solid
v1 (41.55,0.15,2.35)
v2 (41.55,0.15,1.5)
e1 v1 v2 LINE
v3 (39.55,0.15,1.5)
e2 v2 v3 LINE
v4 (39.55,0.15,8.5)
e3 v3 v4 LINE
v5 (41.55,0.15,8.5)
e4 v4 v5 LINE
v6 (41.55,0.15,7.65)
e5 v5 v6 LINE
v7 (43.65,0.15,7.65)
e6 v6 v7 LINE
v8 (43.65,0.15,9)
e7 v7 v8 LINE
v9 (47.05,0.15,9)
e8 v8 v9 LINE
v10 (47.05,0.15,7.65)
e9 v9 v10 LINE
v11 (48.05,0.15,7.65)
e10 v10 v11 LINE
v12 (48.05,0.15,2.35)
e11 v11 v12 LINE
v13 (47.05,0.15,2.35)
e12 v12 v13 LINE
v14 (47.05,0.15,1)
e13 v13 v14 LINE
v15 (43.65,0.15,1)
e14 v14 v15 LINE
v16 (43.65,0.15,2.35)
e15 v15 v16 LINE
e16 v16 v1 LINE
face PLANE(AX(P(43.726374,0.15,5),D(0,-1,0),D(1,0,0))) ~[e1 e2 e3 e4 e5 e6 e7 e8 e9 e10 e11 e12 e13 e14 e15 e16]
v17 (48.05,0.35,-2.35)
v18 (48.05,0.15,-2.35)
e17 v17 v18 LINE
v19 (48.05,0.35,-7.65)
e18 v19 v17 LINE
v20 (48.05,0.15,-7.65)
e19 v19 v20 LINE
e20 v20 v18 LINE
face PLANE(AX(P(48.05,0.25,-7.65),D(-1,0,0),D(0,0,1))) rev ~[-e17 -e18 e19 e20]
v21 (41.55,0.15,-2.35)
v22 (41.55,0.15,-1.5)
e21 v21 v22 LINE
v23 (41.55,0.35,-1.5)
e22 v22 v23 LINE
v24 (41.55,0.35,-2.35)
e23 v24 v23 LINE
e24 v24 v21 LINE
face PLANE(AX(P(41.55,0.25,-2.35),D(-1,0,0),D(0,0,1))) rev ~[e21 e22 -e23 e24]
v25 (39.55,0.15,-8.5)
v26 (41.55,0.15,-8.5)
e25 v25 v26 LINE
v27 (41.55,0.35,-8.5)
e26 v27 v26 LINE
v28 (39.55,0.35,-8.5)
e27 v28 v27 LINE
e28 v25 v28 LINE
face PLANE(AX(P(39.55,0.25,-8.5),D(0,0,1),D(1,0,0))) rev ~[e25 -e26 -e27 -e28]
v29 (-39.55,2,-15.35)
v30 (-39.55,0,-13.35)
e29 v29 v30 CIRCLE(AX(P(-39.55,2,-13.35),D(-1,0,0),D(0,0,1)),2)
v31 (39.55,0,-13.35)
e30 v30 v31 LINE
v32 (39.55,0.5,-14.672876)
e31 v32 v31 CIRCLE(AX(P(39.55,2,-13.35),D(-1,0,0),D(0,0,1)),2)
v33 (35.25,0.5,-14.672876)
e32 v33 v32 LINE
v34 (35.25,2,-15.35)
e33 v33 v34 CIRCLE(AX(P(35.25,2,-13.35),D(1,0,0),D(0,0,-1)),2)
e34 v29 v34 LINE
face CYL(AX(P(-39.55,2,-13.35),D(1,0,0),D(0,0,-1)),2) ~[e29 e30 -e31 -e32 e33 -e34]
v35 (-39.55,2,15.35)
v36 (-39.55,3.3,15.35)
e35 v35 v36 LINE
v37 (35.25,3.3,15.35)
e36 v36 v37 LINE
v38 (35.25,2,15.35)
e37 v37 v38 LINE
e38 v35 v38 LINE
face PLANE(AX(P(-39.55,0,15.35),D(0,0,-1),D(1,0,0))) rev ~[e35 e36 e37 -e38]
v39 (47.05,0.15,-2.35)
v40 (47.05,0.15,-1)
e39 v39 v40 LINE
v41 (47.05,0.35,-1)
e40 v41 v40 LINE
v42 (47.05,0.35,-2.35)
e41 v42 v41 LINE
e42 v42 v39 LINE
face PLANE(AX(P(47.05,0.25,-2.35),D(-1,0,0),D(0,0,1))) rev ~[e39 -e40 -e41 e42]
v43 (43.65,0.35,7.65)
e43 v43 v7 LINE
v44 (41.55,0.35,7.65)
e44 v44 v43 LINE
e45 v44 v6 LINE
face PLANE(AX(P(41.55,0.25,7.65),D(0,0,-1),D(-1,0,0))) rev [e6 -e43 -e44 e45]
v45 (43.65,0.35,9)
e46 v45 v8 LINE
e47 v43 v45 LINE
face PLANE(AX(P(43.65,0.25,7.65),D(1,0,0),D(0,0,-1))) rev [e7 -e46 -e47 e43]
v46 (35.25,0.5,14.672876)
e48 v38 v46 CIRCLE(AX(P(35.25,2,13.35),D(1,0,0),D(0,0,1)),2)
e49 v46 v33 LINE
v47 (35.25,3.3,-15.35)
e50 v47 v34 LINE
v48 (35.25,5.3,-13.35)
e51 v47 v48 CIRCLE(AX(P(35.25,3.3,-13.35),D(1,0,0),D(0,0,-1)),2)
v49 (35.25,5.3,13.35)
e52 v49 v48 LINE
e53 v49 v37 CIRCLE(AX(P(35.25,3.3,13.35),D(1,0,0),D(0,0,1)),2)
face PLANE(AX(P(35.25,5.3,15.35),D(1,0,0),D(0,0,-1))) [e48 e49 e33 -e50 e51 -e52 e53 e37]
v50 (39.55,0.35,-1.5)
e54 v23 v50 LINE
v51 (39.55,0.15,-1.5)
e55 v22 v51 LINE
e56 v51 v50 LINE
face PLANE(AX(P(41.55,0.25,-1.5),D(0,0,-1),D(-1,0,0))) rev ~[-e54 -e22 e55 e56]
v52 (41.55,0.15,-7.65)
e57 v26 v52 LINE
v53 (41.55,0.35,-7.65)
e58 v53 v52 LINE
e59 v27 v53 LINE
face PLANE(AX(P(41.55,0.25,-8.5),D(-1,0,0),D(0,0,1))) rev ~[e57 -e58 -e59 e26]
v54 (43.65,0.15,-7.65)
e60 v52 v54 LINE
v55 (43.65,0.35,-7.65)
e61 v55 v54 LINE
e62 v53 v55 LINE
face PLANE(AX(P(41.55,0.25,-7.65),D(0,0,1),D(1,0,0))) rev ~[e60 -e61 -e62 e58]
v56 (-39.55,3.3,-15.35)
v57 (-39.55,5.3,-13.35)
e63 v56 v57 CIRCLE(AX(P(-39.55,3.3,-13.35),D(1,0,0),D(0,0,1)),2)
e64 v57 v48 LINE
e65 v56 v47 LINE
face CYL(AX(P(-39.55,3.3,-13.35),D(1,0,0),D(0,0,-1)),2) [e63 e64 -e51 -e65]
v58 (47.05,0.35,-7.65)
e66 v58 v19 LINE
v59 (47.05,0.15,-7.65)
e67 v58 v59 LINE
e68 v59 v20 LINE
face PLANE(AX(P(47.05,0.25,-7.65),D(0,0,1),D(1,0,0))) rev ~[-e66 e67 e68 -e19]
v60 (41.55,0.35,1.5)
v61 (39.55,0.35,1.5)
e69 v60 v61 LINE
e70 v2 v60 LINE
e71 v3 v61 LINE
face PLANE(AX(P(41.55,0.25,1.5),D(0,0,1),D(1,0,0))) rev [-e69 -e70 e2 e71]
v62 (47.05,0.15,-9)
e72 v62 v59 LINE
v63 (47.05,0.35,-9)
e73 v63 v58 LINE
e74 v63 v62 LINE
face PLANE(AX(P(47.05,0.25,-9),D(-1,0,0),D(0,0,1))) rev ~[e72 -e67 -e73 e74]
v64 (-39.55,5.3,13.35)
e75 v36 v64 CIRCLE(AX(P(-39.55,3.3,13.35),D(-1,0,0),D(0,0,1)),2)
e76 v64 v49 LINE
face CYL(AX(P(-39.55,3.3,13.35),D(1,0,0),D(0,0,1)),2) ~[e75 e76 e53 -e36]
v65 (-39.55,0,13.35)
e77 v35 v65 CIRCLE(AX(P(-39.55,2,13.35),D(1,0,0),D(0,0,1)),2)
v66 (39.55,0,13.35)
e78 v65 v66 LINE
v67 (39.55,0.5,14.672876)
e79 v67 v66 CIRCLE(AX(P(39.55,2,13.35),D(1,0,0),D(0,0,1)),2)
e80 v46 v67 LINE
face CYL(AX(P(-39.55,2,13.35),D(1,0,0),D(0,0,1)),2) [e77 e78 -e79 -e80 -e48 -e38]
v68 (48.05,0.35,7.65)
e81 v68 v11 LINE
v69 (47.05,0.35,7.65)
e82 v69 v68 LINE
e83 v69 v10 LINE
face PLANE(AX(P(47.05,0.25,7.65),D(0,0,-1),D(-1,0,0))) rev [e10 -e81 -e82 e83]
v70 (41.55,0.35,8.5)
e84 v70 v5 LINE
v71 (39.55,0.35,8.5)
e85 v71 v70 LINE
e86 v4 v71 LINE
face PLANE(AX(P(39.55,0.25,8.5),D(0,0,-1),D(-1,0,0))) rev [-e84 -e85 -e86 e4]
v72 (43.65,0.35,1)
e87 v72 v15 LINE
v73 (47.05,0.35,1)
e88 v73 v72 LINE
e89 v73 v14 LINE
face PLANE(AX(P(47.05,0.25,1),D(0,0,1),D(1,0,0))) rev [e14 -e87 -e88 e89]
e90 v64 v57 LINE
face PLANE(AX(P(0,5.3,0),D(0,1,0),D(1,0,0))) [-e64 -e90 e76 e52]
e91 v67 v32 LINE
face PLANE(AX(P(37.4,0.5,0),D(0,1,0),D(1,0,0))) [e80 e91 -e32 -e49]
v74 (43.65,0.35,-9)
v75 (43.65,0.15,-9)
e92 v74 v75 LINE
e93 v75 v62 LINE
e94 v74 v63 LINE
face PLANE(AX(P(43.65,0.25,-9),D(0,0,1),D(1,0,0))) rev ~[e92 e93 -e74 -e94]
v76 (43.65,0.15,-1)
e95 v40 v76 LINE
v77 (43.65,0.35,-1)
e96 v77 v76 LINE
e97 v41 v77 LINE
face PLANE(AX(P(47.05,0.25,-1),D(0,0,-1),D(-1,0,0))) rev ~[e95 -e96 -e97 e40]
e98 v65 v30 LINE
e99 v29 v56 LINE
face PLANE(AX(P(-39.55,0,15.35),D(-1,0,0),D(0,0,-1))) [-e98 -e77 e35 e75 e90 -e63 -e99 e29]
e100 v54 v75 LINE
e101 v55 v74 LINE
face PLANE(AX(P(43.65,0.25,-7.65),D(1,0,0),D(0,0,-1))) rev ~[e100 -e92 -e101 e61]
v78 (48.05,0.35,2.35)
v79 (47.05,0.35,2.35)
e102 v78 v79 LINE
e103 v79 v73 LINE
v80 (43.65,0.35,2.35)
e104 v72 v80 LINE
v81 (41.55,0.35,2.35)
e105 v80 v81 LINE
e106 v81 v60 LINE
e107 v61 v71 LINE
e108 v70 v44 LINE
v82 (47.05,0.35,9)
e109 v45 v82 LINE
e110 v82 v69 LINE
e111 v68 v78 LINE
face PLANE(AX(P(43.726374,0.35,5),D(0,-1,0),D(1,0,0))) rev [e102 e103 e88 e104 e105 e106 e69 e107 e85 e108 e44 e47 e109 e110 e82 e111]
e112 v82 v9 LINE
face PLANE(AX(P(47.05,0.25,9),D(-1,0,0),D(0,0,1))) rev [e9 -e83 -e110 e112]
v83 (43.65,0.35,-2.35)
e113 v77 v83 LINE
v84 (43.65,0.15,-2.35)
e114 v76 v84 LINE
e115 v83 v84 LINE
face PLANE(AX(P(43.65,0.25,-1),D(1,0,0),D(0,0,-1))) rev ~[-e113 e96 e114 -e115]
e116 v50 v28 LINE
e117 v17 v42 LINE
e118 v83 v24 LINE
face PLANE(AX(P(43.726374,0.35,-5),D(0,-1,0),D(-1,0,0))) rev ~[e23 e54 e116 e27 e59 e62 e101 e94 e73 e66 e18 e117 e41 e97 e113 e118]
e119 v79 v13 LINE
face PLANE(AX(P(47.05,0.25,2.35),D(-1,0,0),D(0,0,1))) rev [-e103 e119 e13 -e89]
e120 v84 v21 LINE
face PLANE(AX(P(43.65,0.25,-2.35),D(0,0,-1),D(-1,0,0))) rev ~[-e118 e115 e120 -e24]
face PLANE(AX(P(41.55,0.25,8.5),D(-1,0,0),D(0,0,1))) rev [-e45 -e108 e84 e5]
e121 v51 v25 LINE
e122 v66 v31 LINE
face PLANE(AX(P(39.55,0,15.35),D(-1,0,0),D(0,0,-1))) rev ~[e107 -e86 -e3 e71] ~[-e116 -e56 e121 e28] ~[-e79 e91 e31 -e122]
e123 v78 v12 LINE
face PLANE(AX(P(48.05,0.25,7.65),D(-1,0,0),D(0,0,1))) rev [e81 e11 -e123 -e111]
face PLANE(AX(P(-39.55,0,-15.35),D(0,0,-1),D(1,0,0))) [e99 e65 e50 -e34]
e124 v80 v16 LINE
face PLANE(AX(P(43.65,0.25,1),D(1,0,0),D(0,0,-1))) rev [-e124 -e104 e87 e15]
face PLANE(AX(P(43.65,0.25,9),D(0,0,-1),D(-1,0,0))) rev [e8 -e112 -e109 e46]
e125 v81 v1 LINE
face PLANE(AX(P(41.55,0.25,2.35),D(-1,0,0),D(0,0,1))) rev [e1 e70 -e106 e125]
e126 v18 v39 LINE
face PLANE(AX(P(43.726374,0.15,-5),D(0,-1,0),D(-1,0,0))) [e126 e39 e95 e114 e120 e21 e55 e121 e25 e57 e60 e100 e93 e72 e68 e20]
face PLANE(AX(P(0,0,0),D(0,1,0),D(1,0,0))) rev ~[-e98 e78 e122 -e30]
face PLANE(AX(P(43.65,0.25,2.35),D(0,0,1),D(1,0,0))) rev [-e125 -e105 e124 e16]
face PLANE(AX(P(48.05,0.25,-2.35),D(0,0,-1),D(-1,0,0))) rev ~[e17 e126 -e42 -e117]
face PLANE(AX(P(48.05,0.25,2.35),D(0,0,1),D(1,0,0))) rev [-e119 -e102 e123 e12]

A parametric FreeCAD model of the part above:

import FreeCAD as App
import Part
import Sketcher

V = App.Vector


def edges_at(feature, points):
    """Names of the edges that pass closest to the given points."""
    edges = feature.Shape.Edges
    near = lambda p: min(range(len(edges)), key=lambda i: edges[i].distToShape(Part.Vertex(*p))[0])
    return sorted({f"Edge{near(p) + 1}" for p in points})

doc = App.newDocument("Part")
body = doc.addObject("PartDesign::Body", "Body")

# Sketch on XZ plane
sketch1 = doc.addObject("Sketcher::SketchObject", "Sketch")
body.addObject(sketch1)
sketch1.AttachmentSupport = (doc.XZ_Plane, [""])
sketch1.MapMode = "FlatFace"
sketch1.addGeometry([
    Part.LineSegment(V(-40, -15, 0), V(-40, 15, 0)),
    Part.LineSegment(V(-40, 15, 0), V(40, 15, 0)),
    Part.LineSegment(V(40, 15, 0), V(40, -15, 0)),
    Part.LineSegment(V(40, -15, 0), V(-40, -15, 0)),
], False)
sketch1.addConstraint([
    Sketcher.Constraint("Coincident", 0, 2, 1, 1),
    Sketcher.Constraint("Coincident", 1, 2, 2, 1),
    Sketcher.Constraint("Coincident", 2, 2, 3, 1),
    Sketcher.Constraint("Coincident", 3, 2, 0, 1),
    Sketcher.Constraint("Vertical", 0),
    Sketcher.Constraint("Horizontal", 1),
    Sketcher.Constraint("Vertical", 2),
    Sketcher.Constraint("Horizontal", 3),
    Sketcher.Constraint("Symmetric", 0, 2, 2, 2, -1, 1),
    Sketcher.Constraint("DistanceX", 1, 1, 1, 2, 79.1),
    Sketcher.Constraint("DistanceY", 0, 1, 0, 2, 30.7),
])
pad1 = doc.addObject("PartDesign::Pad", "Pad")
body.addObject(pad1)
pad1.Profile = sketch1
pad1.Length = 5.3
pad1.Reversed = True
doc.recompute()

fillet = doc.addObject("PartDesign::Fillet", "Fillet")
body.addObject(fillet)
fillet.Base = (pad1, edges_at(pad1, [
    (0, 5.3, -15.35),
    (0, 0, -15.35),
    (0, 0, 15.35),
    (0, 5.3, 15.35),
]))
fillet.Radius = 2

# Sketch on XZ plane
sketch2 = doc.addObject("Sketcher::SketchObject", "Sketch001")
body.addObject(sketch2)
sketch2.AttachmentSupport = (doc.XZ_Plane, [""])
sketch2.MapMode = "FlatFace"
sketch2.AttachmentOffset = App.Placement(V(0, 0, -5.3), App.Rotation())
sketch2.addGeometry([
    Part.LineSegment(V(35.2, -15.3, 0), V(35.2, 15.3, 0)),
    Part.LineSegment(V(35.2, 15.3, 0), V(39.5, 15.3, 0)),
    Part.LineSegment(V(39.5, 15.3, 0), V(39.5, -15.3, 0)),
    Part.LineSegment(V(39.5, -15.3, 0), V(35.2, -15.3, 0)),
], False)
sketch2.addConstraint([
    Sketcher.Constraint("Coincident", 0, 2, 1, 1),
    Sketcher.Constraint("Coincident", 1, 2, 2, 1),
    Sketcher.Constraint("Coincident", 2, 2, 3, 1),
    Sketcher.Constraint("Coincident", 3, 2, 0, 1),
    Sketcher.Constraint("Vertical", 0),
    Sketcher.Constraint("Horizontal", 1),
    Sketcher.Constraint("Vertical", 2),
    Sketcher.Constraint("Horizontal", 3),
    Sketcher.Constraint("DistanceX", 1, 1, 1, 2, 4.3),
    Sketcher.Constraint("DistanceY", 0, 1, 0, 2, 30.7),
    Sketcher.Constraint("DistanceX", -1, 1, 0, 2, 35.25),
    Sketcher.Constraint("DistanceY", -1, 1, 0, 2, 15.35),
])
pocket1 = doc.addObject("PartDesign::Pocket", "Pocket")
body.addObject(pocket1)
pocket1.Profile = sketch2
pocket1.Length = 4.8
pocket1.Reversed = True

# Sketch on XZ plane
sketch3 = doc.addObject("Sketcher::SketchObject", "Sketch002")
body.addObject(sketch3)
sketch3.AttachmentSupport = (doc.XZ_Plane, [""])
sketch3.MapMode = "FlatFace"
sketch3.AttachmentOffset = App.Placement(V(0, 0, -0.25), App.Rotation())
sketch3.addGeometry([
    Part.LineSegment(V(41.5, -8.5, 0), V(39.5, -8.5, 0)),  # 0
    Part.LineSegment(V(39.5, -8.5, 0), V(39.5, -1.5, 0)),  # 1
    Part.LineSegment(V(39.5, -1.5, 0), V(41.5, -1.5, 0)),  # 2
    Part.LineSegment(V(41.5, -1.5, 0), V(41.5, -2.4, 0)),  # 3
    Part.LineSegment(V(41.5, -2.4, 0), V(43.6, -2.4, 0)),  # 4
    Part.LineSegment(V(43.6, -2.4, 0), V(43.6, -1, 0)),  # 5
    Part.LineSegment(V(43.6, -1, 0), V(47, -1, 0)),  # 6
    Part.LineSegment(V(47, -1, 0), V(47, -2.4, 0)),  # 7
    Part.LineSegment(V(47, -2.4, 0), V(48, -2.4, 0)),  # 8
    Part.LineSegment(V(48, -2.4, 0), V(48, -7.7, 0)),  # 9
    Part.LineSegment(V(48, -7.7, 0), V(47, -7.7, 0)),  # 10
    Part.LineSegment(V(47, -7.7, 0), V(47, -9, 0)),  # 11
    Part.LineSegment(V(47, -9, 0), V(43.6, -9, 0)),  # 12
    Part.LineSegment(V(43.6, -9, 0), V(43.6, -7.7, 0)),  # 13
    Part.LineSegment(V(43.6, -7.7, 0), V(41.5, -7.7, 0)),  # 14
    Part.LineSegment(V(41.5, -7.7, 0), V(41.5, -8.5, 0)),  # 15
], False)
sketch3.addConstraint([
    Sketcher.Constraint("Coincident", 0, 2, 1, 1),
    Sketcher.Constraint("Coincident", 1, 2, 2, 1),
    Sketcher.Constraint("Coincident", 2, 2, 3, 1),
    Sketcher.Constraint("Coincident", 3, 2, 4, 1),
    Sketcher.Constraint("Coincident", 4, 2, 5, 1),
    Sketcher.Constraint("Coincident", 5, 2, 6, 1),
    Sketcher.Constraint("Coincident", 6, 2, 7, 1),
    Sketcher.Constraint("Coincident", 7, 2, 8, 1),
    Sketcher.Constraint("Coincident", 8, 2, 9, 1),
    Sketcher.Constraint("Coincident", 9, 2, 10, 1),
    Sketcher.Constraint("Coincident", 10, 2, 11, 1),
    Sketcher.Constraint("Coincident", 11, 2, 12, 1),
    Sketcher.Constraint("Coincident", 12, 2, 13, 1),
    Sketcher.Constraint("Coincident", 13, 2, 14, 1),
    Sketcher.Constraint("Coincident", 14, 2, 15, 1),
    Sketcher.Constraint("Coincident", 15, 2, 0, 1),
    Sketcher.Constraint("Horizontal", 0),
    Sketcher.Constraint("Vertical", 1),
    Sketcher.Constraint("Horizontal", 2),
    Sketcher.Constraint("Vertical", 3),
    Sketcher.Constraint("Horizontal", 4),
    Sketcher.Constraint("Vertical", 5),
    Sketcher.Constraint("Horizontal", 6),
    Sketcher.Constraint("Vertical", 7),
    Sketcher.Constraint("Horizontal", 8),
    Sketcher.Constraint("Vertical", 9),
    Sketcher.Constraint("Horizontal", 10),
    Sketcher.Constraint("Vertical", 11),
    Sketcher.Constraint("Horizontal", 12),
    Sketcher.Constraint("Vertical", 13),
    Sketcher.Constraint("Horizontal", 14),
    Sketcher.Constraint("Vertical", 15),
    Sketcher.Constraint("Horizontal", 4, 2, 7, 2),
    Sketcher.Constraint("Horizontal", 10, 2, 13, 2),
    Sketcher.Constraint("Vertical", 7, 2, 10, 2),
    Sketcher.Constraint("Vertical", 5, 2, 12, 2),
    Sketcher.Constraint("Vertical", 3, 2, 14, 2),
    Sketcher.Constraint("Equal", 7, 11),
    Sketcher.Constraint("Equal", 3, 15),
    Sketcher.Constraint("DistanceX", 0, 2, 0, 1, 2.0),
    Sketcher.Constraint("DistanceX", 8, 1, 8, 2, 1.0),
    Sketcher.Constraint("DistanceY", 1, 1, 1, 2, 7.0),
    Sketcher.Constraint("DistanceX", 4, 1, 4, 2, 2.1),
    Sketcher.Constraint("DistanceX", 6, 1, 6, 2, 3.4),
    Sketcher.Constraint("DistanceY", 9, 2, 9, 1, 5.3),
    Sketcher.Constraint("DistanceY", 5, 2, -1, 1, 1.0),
    Sketcher.Constraint("DistanceY", 11, 2, -1, 1, 9.0),
    Sketcher.Constraint("DistanceX", -1, 1, 0, 2, 39.55),
])
pad2 = doc.addObject("PartDesign::Pad", "Pad001")
body.addObject(pad2)
pad2.Profile = sketch3
pad2.Length = 0.2
pad2.Midplane = True
doc.recompute()

mirrored = doc.addObject("PartDesign::Mirrored", "Mirrored")
body.addObject(mirrored)
mirrored.Originals = [pad2]
mirrored.MirrorPlane = (doc.XY_Plane, [""])
body.Tip = mirrored

doc.recompute()
